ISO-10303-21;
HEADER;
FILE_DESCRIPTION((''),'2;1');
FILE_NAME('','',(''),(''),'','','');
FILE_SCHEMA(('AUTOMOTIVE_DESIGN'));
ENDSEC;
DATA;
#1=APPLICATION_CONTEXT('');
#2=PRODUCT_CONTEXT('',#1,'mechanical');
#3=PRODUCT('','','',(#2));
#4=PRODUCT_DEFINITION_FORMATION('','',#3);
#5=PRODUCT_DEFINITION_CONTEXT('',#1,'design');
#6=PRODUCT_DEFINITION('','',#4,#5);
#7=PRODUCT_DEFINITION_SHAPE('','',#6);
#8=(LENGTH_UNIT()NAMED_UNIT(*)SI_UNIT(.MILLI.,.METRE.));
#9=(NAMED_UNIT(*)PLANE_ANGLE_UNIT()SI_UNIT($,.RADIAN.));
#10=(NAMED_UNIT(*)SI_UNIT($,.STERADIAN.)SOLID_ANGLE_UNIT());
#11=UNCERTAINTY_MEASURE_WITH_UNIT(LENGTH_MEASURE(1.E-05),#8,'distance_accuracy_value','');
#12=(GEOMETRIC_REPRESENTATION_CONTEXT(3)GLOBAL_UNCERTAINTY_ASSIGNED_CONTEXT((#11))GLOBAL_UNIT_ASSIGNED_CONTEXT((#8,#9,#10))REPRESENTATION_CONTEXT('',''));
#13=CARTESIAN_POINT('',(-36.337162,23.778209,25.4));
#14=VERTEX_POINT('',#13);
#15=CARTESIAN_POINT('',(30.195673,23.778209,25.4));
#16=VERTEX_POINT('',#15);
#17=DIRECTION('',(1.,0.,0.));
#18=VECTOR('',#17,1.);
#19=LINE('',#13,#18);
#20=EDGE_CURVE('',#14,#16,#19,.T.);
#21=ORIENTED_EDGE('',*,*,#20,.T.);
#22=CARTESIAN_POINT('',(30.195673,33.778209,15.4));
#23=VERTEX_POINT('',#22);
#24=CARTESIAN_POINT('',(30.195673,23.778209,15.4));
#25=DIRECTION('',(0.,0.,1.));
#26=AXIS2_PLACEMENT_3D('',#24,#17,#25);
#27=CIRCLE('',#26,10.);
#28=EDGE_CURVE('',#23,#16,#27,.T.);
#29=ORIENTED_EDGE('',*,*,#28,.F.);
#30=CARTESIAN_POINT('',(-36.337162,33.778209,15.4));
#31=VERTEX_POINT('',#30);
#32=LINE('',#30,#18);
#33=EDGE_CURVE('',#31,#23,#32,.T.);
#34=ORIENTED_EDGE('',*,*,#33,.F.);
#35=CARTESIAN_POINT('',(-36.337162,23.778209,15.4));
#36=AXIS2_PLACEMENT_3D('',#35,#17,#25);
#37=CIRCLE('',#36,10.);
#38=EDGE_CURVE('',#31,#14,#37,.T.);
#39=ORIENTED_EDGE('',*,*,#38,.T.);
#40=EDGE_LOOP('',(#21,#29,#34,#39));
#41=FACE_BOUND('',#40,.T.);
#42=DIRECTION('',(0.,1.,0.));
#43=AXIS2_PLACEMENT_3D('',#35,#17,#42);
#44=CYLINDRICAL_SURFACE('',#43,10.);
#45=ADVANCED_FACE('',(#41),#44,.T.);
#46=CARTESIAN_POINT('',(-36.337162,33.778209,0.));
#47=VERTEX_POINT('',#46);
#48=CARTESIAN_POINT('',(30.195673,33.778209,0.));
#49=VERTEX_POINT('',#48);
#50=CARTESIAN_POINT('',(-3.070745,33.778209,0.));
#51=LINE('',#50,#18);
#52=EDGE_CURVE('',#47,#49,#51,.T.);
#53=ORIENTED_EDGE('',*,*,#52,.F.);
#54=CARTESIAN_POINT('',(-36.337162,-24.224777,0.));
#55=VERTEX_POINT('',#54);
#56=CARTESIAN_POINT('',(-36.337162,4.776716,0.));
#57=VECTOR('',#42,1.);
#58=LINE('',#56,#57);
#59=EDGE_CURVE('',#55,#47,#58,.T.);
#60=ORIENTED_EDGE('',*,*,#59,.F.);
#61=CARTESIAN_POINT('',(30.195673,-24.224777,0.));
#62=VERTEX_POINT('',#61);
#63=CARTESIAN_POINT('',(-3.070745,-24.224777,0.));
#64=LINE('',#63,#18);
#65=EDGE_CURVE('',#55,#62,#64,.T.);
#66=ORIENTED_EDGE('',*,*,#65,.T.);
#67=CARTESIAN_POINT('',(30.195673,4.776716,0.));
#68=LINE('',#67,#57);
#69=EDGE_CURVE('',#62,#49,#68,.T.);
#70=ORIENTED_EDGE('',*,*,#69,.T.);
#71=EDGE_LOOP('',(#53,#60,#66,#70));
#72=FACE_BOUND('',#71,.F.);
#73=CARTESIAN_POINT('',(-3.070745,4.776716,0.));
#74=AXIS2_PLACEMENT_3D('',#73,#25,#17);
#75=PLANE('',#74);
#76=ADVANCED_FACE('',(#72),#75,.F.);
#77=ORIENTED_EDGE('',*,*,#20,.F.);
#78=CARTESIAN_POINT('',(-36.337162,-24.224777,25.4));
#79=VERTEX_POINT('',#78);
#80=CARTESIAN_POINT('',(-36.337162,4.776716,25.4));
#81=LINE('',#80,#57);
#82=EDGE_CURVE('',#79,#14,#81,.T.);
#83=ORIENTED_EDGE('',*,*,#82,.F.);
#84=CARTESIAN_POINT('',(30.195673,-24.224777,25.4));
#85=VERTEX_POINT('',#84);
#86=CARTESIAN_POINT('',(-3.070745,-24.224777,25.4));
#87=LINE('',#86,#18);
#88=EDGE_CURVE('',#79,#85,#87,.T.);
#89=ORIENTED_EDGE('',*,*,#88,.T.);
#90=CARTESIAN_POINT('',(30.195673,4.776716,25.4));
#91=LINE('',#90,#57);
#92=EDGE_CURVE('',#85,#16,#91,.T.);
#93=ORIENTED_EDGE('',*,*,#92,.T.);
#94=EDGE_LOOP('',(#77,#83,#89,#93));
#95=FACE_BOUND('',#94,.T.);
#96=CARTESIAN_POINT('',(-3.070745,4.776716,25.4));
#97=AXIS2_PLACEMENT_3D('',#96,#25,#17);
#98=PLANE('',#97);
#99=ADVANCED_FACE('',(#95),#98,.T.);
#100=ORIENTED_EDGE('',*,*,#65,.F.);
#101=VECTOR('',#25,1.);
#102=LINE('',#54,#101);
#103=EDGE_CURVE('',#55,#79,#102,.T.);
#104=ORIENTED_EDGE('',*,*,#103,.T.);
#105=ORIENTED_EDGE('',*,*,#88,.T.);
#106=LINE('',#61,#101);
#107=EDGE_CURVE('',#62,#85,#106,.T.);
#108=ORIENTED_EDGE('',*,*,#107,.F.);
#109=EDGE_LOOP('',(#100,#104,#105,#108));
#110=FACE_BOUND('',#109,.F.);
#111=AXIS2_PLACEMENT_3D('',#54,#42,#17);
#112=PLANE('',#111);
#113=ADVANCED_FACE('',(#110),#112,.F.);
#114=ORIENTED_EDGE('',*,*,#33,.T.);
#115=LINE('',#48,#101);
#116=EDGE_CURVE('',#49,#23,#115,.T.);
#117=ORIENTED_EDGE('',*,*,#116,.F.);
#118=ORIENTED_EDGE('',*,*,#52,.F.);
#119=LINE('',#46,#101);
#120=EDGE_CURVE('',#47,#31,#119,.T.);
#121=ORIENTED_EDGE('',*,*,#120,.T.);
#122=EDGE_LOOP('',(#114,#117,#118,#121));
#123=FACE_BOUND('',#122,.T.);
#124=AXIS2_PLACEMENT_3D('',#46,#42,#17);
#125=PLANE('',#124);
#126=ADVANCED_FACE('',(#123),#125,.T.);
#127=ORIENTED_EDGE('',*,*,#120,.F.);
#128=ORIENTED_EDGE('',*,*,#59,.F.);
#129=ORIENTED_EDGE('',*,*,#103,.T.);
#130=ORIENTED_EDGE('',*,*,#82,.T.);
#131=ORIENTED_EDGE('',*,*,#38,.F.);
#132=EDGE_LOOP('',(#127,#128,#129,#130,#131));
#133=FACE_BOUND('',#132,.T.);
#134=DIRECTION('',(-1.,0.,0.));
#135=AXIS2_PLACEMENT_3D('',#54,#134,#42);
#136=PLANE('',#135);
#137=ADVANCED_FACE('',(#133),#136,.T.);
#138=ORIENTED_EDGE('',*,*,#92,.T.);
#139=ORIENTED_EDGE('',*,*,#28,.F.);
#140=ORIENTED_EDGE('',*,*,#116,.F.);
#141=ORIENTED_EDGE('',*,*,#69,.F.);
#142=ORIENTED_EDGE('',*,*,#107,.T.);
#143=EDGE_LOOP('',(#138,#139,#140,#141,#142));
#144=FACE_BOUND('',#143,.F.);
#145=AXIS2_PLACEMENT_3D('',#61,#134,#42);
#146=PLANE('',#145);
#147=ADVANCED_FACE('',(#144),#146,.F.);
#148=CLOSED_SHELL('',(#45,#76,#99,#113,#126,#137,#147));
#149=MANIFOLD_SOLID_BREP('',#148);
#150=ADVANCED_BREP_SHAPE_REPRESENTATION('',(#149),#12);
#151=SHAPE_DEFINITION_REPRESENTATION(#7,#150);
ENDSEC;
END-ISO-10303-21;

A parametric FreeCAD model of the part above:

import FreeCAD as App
import Part
import Sketcher
from FreeCAD import Vector
Q = App.Units.Quantity


def edges_at(feature, points):
    """Names of the edges that pass closest to the given points."""
    edges = feature.Shape.Edges
    near = lambda p: min(range(len(edges)), key=lambda i: edges[i].distToShape(Part.Vertex(*p))[0])
    return sorted({f"Edge{near(p) + 1}" for p in points})

doc = App.newDocument("Part")
body = doc.addObject("PartDesign::Body", "Body")

# Sketch on XY plane
sketch1 = body.newObject("Sketcher::SketchObject", "Sketch")
sketch1.AttachmentSupport = (doc.getObject("XY_Plane"), [""])
sketch1.MapMode = "FlatFace"
sketch1.addGeometry(Part.LineSegment(Vector(-36, 34, 0), Vector(-36, -24, 0)), False)
sketch1.addGeometry(Part.LineSegment(Vector(-36, -24, 0), Vector(30, -24, 0)), False)
sketch1.addGeometry(Part.LineSegment(Vector(30, -24, 0), Vector(30, 34, 0)), False)
sketch1.addGeometry(Part.LineSegment(Vector(30, 34, 0), Vector(-36, 34, 0)), False)
sketch1.addConstraint(Sketcher.Constraint("Coincident", 0, 2, 1, 1))
sketch1.addConstraint(Sketcher.Constraint("Coincident", 1, 2, 2, 1))
sketch1.addConstraint(Sketcher.Constraint("Coincident", 2, 2, 3, 1))
sketch1.addConstraint(Sketcher.Constraint("Coincident", 3, 2, 0, 1))
sketch1.addConstraint(Sketcher.Constraint("Vertical", 0))
sketch1.addConstraint(Sketcher.Constraint("Horizontal", 1))
sketch1.addConstraint(Sketcher.Constraint("Vertical", 2))
sketch1.addConstraint(Sketcher.Constraint("Horizontal", 3))
sketch1.addConstraint(Sketcher.Constraint("DistanceX", 1, 1, 1, 2, Q("66.532835 mm")))
sketch1.addConstraint(Sketcher.Constraint("DistanceY", 0, 2, 0, 1, Q("58.002986 mm")))
sketch1.addConstraint(Sketcher.Constraint("DistanceY", -1, 1, 2, 2, Q("33.778209 mm")))
sketch1.addConstraint(Sketcher.Constraint("DistanceX", 0, 2, -1, 1, Q("36.337162 mm")))
pad1 = body.newObject("PartDesign::Pad", "Pad")
pad1.Profile = sketch1
pad1.Length = 25.4
doc.recompute()

fillet = body.newObject("PartDesign::Fillet", "Fillet")
fillet.Base = (pad1, edges_at(pad1, [(-3.071, 33.778, 25.4)]))
fillet.Radius = 10

doc.recompute()
